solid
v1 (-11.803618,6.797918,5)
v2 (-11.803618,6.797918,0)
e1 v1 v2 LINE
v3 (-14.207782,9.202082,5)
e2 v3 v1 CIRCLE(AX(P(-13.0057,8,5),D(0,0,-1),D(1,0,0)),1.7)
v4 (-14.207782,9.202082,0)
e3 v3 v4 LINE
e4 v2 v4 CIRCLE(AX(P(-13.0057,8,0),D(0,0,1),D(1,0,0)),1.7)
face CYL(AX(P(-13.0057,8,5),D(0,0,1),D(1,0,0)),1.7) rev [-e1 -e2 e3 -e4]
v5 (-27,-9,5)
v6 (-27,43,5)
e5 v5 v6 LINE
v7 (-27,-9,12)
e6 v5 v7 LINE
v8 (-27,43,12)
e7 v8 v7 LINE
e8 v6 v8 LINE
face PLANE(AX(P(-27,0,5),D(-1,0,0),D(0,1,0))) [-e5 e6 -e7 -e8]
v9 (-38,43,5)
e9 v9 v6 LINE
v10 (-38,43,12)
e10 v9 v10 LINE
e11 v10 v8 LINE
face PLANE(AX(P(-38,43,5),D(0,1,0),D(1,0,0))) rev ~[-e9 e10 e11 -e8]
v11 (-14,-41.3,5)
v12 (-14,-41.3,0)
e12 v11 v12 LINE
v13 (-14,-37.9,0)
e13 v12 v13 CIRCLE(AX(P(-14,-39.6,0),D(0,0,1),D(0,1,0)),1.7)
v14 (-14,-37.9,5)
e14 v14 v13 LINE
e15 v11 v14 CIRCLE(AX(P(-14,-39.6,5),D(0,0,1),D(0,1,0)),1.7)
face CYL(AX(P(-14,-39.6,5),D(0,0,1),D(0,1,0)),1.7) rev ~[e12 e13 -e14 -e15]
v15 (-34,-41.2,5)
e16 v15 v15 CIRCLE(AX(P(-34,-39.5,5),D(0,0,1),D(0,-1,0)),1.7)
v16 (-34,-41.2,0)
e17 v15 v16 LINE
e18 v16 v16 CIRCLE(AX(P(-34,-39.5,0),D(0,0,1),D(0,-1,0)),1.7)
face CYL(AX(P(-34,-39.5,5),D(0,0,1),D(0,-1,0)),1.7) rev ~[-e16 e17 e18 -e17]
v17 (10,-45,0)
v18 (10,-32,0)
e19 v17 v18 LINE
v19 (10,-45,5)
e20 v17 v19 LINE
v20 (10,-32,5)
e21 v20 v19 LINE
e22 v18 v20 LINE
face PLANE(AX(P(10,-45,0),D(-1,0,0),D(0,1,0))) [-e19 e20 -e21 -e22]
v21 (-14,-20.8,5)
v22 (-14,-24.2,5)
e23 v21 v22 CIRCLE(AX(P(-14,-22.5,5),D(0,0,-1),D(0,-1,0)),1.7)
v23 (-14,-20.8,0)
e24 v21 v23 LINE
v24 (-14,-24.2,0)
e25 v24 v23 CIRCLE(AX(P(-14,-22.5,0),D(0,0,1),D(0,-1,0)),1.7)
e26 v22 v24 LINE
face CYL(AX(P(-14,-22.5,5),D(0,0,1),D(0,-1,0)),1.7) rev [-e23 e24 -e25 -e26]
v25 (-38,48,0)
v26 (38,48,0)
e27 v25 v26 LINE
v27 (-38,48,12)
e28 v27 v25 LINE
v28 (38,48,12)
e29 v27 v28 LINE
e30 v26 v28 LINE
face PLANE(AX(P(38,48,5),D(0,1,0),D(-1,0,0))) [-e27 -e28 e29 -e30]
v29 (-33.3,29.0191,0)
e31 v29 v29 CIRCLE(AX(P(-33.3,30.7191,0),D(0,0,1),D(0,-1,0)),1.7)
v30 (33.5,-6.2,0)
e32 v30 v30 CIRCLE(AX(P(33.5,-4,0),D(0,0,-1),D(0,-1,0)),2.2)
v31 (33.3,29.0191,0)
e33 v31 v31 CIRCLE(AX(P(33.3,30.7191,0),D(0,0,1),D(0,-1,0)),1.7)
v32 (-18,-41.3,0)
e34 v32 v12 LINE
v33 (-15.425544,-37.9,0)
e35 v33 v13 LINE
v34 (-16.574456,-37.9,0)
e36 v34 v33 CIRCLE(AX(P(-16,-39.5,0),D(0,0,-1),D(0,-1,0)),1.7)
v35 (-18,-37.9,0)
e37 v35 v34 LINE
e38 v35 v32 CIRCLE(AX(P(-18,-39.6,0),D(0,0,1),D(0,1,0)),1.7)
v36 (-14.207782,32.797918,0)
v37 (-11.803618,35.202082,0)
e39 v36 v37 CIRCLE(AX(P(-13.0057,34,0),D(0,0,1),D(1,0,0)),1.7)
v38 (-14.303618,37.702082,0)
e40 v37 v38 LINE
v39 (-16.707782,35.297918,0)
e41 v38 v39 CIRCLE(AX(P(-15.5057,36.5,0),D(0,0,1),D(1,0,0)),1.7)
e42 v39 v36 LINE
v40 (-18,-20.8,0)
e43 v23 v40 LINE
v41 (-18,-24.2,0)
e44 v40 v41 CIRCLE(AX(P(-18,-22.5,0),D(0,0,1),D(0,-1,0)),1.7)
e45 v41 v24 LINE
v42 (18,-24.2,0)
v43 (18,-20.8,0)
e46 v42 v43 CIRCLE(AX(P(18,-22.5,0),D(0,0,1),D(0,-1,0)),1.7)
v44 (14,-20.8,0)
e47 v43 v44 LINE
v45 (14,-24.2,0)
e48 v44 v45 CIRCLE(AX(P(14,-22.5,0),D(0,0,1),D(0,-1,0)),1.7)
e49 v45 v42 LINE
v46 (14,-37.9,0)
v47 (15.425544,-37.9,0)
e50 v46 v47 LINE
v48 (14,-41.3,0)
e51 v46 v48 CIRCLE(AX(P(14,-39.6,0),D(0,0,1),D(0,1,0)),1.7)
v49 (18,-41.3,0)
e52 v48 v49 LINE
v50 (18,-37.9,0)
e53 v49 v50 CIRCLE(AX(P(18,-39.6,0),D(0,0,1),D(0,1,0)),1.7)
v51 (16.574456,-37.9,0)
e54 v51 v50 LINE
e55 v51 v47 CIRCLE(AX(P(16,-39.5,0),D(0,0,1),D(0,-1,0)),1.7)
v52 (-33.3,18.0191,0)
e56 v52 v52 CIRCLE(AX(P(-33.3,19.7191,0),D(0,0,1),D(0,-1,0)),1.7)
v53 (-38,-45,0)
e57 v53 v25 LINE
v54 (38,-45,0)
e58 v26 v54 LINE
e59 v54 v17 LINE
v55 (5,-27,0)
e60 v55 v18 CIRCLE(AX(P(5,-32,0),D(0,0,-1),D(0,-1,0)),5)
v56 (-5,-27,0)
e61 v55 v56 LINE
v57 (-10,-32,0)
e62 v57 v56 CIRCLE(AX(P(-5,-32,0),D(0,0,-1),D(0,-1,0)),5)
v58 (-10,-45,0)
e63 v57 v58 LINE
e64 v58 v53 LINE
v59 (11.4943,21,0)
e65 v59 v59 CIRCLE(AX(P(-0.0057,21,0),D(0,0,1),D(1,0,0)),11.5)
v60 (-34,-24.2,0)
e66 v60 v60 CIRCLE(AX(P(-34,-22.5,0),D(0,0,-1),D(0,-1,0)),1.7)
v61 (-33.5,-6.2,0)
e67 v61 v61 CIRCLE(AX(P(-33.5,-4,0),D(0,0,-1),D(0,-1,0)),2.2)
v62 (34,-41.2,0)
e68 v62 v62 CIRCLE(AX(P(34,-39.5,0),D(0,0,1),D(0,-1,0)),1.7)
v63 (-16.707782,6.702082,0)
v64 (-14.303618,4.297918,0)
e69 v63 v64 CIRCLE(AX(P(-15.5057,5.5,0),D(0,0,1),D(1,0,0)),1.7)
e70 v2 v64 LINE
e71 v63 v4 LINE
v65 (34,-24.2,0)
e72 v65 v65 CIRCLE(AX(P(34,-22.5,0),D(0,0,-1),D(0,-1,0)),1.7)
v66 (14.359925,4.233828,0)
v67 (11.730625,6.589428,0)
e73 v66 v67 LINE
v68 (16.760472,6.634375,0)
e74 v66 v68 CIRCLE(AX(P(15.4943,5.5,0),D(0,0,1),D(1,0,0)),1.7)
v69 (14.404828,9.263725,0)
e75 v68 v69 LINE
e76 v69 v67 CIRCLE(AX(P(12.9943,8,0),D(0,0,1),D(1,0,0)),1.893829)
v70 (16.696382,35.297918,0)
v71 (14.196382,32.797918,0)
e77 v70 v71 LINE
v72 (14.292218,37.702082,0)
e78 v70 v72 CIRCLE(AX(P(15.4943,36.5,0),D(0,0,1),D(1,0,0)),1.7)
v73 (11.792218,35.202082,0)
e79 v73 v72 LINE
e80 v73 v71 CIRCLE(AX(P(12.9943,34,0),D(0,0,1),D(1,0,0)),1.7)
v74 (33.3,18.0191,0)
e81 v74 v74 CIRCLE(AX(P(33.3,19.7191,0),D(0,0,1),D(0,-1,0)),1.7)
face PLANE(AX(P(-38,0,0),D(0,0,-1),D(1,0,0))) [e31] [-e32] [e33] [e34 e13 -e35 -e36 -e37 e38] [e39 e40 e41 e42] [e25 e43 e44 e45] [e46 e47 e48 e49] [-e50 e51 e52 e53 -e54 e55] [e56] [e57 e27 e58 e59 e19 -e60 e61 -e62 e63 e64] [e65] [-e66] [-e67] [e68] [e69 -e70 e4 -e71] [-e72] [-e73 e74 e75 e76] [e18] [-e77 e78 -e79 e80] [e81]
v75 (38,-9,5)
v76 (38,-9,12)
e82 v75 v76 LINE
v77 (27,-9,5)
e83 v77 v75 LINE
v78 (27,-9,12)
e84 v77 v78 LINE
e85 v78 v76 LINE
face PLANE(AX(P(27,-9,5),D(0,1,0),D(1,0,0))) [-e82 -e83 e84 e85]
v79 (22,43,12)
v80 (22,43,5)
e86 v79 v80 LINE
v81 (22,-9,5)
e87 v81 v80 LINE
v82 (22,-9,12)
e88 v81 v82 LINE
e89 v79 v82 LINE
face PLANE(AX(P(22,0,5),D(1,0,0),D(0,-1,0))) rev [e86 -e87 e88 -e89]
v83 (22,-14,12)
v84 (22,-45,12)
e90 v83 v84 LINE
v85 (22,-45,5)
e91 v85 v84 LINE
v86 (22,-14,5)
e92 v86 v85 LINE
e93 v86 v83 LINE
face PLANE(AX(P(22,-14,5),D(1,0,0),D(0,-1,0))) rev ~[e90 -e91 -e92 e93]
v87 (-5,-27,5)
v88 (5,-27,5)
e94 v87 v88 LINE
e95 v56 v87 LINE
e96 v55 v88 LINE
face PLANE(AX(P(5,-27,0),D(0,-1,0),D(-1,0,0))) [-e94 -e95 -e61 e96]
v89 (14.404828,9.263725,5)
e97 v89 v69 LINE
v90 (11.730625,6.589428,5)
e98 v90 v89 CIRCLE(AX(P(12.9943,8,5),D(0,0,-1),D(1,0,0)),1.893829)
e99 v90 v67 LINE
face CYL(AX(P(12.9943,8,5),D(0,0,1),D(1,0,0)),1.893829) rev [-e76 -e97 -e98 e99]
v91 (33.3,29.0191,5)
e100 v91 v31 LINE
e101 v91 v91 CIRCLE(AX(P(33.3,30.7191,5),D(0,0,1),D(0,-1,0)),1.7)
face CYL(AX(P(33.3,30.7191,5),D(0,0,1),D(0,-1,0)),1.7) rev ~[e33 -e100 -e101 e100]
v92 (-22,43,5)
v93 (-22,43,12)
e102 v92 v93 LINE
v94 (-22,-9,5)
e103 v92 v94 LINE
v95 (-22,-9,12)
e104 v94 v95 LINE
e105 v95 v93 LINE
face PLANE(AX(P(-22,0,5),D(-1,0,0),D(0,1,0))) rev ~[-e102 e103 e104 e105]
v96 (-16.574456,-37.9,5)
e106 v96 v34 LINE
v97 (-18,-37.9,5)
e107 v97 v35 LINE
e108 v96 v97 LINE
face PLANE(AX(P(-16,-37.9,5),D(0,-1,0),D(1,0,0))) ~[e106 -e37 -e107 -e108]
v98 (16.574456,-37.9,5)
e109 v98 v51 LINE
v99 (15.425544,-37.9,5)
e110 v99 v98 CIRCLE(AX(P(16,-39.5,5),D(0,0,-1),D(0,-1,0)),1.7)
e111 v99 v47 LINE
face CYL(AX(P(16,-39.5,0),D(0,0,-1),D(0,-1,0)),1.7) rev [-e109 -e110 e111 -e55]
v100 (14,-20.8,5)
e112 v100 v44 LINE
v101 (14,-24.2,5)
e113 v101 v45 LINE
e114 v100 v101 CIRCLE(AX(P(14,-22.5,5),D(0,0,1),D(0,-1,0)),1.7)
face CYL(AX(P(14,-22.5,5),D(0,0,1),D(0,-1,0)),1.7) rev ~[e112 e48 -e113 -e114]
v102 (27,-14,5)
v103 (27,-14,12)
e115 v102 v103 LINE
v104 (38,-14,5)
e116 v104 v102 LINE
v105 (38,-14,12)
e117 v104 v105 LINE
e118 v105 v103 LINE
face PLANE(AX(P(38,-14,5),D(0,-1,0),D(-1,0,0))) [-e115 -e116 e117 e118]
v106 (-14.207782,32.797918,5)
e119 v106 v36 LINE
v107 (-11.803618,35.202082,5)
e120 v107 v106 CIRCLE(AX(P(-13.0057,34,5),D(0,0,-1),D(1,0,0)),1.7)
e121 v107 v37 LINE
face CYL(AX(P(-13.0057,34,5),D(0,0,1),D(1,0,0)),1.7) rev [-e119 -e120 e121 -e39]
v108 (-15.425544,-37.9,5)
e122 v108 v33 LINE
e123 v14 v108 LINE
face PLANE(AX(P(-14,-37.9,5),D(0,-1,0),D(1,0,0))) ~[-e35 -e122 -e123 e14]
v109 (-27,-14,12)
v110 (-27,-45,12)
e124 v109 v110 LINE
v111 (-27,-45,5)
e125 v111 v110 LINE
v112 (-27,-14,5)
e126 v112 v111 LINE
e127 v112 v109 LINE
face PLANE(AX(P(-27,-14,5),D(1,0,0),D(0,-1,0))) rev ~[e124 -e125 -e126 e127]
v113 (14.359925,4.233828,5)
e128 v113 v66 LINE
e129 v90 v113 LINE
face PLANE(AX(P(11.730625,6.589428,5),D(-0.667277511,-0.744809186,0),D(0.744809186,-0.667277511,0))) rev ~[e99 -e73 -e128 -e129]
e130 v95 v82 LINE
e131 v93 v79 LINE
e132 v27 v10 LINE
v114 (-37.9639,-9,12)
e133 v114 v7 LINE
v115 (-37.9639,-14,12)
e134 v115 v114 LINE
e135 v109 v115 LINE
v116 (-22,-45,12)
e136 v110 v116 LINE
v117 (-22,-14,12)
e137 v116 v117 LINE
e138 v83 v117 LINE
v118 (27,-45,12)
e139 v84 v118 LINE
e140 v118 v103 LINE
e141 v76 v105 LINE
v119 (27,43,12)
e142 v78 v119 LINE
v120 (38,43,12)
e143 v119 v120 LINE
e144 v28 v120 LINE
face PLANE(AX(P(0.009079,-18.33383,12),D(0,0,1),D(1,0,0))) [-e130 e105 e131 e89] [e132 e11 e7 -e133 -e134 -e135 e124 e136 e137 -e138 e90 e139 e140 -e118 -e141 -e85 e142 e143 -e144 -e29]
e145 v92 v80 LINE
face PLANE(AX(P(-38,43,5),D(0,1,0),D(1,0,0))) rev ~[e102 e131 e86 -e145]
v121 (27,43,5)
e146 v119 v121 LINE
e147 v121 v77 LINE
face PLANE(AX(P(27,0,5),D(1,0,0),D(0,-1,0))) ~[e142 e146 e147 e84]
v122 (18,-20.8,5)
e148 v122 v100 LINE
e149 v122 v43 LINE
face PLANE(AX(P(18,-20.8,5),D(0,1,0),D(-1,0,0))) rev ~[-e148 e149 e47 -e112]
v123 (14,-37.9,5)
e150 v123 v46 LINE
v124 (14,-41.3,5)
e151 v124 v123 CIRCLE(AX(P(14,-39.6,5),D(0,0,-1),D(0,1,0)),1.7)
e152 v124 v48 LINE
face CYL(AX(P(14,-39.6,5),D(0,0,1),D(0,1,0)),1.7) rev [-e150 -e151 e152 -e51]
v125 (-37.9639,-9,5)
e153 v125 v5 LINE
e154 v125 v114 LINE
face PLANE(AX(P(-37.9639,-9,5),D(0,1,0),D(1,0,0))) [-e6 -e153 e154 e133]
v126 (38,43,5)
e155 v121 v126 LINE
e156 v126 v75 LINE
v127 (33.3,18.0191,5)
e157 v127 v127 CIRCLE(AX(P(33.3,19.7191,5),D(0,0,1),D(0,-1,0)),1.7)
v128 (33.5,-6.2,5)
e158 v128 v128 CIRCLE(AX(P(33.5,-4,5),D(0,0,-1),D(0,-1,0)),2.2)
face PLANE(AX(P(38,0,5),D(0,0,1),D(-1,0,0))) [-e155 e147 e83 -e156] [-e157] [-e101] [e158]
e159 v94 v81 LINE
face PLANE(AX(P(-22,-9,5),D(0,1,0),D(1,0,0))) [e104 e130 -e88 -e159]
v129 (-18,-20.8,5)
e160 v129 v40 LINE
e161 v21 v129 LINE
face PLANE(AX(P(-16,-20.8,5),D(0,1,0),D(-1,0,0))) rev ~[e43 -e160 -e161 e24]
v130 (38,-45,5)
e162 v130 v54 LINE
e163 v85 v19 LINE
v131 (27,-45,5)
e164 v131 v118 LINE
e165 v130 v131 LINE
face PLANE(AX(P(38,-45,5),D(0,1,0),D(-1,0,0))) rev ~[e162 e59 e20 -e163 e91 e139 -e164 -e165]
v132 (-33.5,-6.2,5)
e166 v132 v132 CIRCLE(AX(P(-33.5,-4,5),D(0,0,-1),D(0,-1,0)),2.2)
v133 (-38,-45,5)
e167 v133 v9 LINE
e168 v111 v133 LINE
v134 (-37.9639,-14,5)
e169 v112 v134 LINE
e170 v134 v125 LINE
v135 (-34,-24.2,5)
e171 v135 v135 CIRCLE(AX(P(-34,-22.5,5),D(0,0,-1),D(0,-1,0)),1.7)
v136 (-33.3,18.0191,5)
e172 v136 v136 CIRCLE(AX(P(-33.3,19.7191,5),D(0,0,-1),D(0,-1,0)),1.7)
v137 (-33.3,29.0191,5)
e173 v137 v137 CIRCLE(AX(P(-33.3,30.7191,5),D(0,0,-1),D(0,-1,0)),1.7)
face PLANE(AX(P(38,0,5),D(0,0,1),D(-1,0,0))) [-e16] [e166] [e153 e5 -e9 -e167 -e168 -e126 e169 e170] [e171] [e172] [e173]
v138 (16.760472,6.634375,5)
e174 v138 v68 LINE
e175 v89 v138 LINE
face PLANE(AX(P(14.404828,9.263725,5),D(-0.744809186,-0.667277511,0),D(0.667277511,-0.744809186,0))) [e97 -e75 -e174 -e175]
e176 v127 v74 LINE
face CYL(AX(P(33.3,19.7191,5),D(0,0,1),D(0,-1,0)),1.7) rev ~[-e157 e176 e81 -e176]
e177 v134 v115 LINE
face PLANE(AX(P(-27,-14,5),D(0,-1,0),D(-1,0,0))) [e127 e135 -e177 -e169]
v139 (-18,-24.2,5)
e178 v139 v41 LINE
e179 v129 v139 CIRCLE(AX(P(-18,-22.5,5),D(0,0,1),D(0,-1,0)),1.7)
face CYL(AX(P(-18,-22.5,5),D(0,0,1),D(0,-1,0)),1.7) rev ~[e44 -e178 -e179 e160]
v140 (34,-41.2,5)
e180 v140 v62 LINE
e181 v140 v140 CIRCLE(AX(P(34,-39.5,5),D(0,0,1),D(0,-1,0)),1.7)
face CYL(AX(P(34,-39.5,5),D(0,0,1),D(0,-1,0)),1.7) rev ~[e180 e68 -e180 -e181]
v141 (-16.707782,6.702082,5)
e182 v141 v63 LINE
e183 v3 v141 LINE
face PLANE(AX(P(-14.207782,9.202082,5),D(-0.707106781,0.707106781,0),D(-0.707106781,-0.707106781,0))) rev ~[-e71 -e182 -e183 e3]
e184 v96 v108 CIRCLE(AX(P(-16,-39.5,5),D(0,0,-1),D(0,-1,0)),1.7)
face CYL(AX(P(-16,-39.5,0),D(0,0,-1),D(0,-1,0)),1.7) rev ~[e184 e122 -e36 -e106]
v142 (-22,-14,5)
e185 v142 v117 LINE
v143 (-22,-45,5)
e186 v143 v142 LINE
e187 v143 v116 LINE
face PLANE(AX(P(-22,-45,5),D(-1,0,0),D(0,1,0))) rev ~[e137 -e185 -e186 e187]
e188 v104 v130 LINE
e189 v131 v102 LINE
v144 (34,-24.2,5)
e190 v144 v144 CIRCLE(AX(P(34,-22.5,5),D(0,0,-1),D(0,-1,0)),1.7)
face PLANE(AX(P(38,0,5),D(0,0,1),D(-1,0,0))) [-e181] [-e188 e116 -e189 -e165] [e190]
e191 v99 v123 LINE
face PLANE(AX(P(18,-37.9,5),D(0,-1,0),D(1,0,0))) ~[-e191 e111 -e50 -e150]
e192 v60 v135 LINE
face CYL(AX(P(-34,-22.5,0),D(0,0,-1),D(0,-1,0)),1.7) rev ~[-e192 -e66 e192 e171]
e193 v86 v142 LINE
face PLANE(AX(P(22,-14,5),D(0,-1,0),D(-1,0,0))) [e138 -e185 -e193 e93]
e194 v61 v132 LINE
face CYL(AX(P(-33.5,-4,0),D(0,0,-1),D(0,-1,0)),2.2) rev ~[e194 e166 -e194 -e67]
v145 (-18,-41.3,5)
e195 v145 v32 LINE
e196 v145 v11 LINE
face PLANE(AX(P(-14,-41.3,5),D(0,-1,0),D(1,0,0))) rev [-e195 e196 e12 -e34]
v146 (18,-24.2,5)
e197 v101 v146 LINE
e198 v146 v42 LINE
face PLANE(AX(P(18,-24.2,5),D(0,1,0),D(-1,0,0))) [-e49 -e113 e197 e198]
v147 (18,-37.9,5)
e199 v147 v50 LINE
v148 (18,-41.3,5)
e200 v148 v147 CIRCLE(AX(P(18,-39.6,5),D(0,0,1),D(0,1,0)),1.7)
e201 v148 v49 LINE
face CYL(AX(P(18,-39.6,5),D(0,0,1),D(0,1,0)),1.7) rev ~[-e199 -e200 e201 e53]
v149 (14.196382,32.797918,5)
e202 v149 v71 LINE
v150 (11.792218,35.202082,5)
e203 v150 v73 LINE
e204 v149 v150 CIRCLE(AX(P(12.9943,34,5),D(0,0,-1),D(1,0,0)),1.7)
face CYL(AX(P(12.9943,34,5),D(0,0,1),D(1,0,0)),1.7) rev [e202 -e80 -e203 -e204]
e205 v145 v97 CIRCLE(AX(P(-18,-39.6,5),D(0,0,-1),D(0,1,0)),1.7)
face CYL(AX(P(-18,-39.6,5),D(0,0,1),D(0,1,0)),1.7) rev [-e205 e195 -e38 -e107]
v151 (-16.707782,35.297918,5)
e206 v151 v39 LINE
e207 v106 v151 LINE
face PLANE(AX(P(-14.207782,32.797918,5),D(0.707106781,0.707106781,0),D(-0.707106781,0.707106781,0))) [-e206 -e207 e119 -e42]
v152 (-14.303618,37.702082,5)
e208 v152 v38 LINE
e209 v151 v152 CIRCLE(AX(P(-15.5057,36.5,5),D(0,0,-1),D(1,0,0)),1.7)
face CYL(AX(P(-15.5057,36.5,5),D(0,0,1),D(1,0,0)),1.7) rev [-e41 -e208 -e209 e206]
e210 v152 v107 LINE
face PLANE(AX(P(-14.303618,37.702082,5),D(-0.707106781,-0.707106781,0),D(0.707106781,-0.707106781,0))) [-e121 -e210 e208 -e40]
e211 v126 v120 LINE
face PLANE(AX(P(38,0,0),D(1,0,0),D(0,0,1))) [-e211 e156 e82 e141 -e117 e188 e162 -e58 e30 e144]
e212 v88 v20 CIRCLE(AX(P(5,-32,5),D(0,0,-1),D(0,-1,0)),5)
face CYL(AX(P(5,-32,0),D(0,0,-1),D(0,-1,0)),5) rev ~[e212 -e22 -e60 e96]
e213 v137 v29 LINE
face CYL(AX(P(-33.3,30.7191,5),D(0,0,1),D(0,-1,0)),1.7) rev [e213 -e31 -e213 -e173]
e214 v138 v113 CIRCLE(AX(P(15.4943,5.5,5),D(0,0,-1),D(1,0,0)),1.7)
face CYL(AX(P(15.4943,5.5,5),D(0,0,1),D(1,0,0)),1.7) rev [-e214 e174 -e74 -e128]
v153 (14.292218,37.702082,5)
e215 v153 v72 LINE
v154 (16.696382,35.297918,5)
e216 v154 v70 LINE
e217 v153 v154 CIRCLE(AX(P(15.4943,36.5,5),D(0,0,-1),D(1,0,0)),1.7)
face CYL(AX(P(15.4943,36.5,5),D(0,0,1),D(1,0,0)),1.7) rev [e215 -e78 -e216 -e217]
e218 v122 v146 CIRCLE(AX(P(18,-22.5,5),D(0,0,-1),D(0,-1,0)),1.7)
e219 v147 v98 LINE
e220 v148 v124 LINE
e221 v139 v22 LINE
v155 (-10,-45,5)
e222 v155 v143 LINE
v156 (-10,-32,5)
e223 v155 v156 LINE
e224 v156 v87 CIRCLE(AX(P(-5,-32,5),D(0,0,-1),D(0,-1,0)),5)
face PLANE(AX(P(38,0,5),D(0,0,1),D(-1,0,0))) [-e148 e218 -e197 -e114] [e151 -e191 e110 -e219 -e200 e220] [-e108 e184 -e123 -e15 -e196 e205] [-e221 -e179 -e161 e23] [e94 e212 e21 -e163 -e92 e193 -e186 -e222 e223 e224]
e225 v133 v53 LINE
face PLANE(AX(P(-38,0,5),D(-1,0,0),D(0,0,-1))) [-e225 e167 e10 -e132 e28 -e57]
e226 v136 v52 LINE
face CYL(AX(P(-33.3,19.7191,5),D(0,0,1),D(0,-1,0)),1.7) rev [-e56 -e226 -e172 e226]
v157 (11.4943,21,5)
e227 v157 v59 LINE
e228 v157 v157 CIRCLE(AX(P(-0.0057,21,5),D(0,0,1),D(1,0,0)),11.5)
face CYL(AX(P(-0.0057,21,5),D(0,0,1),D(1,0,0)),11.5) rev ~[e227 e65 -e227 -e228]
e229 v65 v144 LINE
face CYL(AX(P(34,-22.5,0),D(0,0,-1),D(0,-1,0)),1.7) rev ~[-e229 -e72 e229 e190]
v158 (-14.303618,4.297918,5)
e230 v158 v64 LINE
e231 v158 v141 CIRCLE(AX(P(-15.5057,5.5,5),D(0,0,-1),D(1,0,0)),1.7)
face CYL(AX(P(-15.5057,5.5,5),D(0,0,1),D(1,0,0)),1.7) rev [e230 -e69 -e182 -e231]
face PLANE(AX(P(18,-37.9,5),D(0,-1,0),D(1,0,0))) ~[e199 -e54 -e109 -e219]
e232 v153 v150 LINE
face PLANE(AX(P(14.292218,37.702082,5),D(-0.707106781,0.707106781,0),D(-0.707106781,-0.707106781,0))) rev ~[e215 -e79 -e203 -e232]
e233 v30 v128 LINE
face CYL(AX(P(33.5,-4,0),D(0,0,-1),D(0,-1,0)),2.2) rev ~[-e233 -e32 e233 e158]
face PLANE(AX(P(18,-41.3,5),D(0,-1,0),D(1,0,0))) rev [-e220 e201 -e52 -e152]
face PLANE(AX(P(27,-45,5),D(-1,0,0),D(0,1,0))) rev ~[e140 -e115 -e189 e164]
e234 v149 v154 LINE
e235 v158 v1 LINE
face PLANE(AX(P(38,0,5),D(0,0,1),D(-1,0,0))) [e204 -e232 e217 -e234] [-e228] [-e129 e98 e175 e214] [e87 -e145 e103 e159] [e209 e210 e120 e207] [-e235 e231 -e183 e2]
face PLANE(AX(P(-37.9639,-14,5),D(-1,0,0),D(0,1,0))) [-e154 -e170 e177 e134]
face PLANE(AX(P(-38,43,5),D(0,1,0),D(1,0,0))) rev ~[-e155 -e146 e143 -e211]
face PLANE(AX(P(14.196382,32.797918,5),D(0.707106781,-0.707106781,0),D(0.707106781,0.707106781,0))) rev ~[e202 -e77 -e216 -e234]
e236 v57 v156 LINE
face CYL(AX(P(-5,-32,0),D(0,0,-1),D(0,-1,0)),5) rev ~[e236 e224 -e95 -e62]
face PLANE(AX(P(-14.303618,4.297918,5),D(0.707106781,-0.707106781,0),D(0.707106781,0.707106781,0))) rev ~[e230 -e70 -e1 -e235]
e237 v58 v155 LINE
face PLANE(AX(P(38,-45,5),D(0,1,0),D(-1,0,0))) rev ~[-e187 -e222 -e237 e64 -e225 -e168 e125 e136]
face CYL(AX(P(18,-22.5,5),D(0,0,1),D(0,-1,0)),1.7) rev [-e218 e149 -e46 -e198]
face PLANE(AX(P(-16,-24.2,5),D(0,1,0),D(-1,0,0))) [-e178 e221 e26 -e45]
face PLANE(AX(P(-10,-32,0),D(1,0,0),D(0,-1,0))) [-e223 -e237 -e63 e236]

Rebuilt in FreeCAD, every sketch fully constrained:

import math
import FreeCAD as App
import Part
import Sketcher
Q = App.Units.Quantity

doc = App.newDocument("Part")
params = doc.addObject("Spreadsheet::Sheet", "Params")
for row, (alias, value) in enumerate([
    ("sketch1_height", "5 mm"),
    ("pad1_length", "62 mm"),
    ("sketch2_diameter", "4.4 mm"),
    ("pocket1_length", "110 mm"),
    ("sketch3_width", "5 mm"),
    ("sketch3_height", "62 mm"),
    ("pad2_length", "5 mm"),
    ("sketch4_width", "76 mm"),
    ("sketch4_height", "5 mm"),
    ("pad3_length", "7 mm"),
    ("sketch5_diameter", "23 mm"),
    ("sketch5_radius", "1.7 mm"),
    ("sketch6_width", "76 mm"),
    ("sketch6_height", "45 mm"),
    ("pad4_length", "5 mm"),
    ("sketch7_diameter", "3.4 mm"),
    ("pocket3_length", "143.3279 mm"),
    ("sketch8_diameter", "3.4 mm"),
    ("pocket4_length", "316.0197 mm"),
    ("sketch9_diameter", "3.4 mm"),
    ("pocket5_length", "37.4845 mm"),
    ("sketch10_height", "14 mm"),
    ("sketch11_diameter", "4.4 mm"),
    ("pocket7_length", "103.1381 mm"),
    ("sketch12_radius", "5 mm"),
    ("sketch12_width", "20 mm"),
    ("sketch12_height", "13 mm"),
    ("pocket8_length", "370.0743 mm"),
    ("sketch13_width", "5 mm"),
    ("sketch13_width2", "44 mm"),
    ("sketch13_width3", "11 mm"),
    ("sketch13_height", "9 mm"),
    ("sketch13_height2", "31 mm"),
    ("pad5_length", "7 mm"),
    ("sketch14_width", "5 mm"),
    ("sketch14_height", "43 mm"),
    ("pad6_length", "2 mm"),
    ("sketch15_radius", "1.7 mm"),
    ("sketch15_width", "4 mm"),
    ("pocket9_length", "2209.1975 mm"),
    ("sketch16_diameter", "3.4 mm"),
    ("pocket10_length", "130.0202 mm"),
], start=1):
    params.set(f"A{row}", alias)
    params.set(f"B{row}", "=" + value)
    params.setAlias(f"B{row}", alias)

body = doc.addObject("PartDesign::Body", "Body")

sketch1 = doc.addObject("Sketcher::SketchObject", "Sketch")
body.addObject(sketch1)
sketch1.AttachmentSupport = (doc.XZ_Plane, [""])
sketch1.MapMode = "FlatFace"
sketch1.addGeometry([
    Part.LineSegment(App.Vector(-38, 5, 0), App.Vector(-38, 0, 0)),
    Part.LineSegment(App.Vector(-38, 0, 0), App.Vector(38, 0, 0)),
    Part.LineSegment(App.Vector(38, 0, 0), App.Vector(38, 5, 0)),
    Part.LineSegment(App.Vector(38, 5, 0), App.Vector(-38, 5, 0)),
], False)
sketch1.addConstraint([
    Sketcher.Constraint("Coincident", 0, 2, 1, 1),
    Sketcher.Constraint("Coincident", 1, 2, 2, 1),
    Sketcher.Constraint("Coincident", 2, 2, 3, 1),
    Sketcher.Constraint("Coincident", 3, 2, 0, 1),
    Sketcher.Constraint("Vertical", 0),
    Sketcher.Constraint("Horizontal", 1),
    Sketcher.Constraint("Vertical", 2),
    Sketcher.Constraint("Horizontal", 3),
    Sketcher.Constraint("Symmetric", 0, 2, 1, 2, -1, 1),
    Sketcher.Constraint("DistanceX", 0, 2, -1, 1, Q("38 mm")),
    Sketcher.Constraint("DistanceY", 0, 2, 0, 1, Q("5 mm")),
])
sketch1.setExpression("Constraints[10]", "Params.sketch1_height")
pad1 = doc.addObject("PartDesign::Pad", "Pad")
body.addObject(pad1)
pad1.Profile = sketch1
pad1.setExpression("Length", "Params.pad1_length")
pad1.Reversed = True

sketch2 = doc.addObject("Sketcher::SketchObject", "Sketch001")
body.addObject(sketch2)
sketch2.AttachmentSupport = (doc.XY_Plane, [""])
sketch2.MapMode = "FlatFace"
sketch2.AttachmentOffset = App.Placement(App.Vector(0, 0, 5), App.Rotation())
sketch2.addGeometry([
    Part.Circle(App.Vector(12.5, 53, 0), App.Vector(0, 0, 1), 2.2),
    Part.Circle(App.Vector(-12.5, 53, 0), App.Vector(0, 0, 1), 2.2),
    Part.Circle(App.Vector(-33.5, 53, 0), App.Vector(0, 0, 1), 2.2),
    Part.Circle(App.Vector(33.5, 53, 0), App.Vector(0, 0, 1), 2.2),
], False)
sketch2.addConstraint([
    Sketcher.Constraint("Equal", 0, 1),
    Sketcher.Constraint("Equal", 1, 2),
    Sketcher.Constraint("Equal", 2, 3),
    Sketcher.Constraint("Symmetric", 0, 3, 1, 3, -2),
    Sketcher.Constraint("Symmetric", 2, 3, 3, 3, -2),
    Sketcher.Constraint("Horizontal", 1, 3, 2, 3),
    Sketcher.Constraint("Diameter", 0, Q("4.4 mm")),
    Sketcher.Constraint("DistanceY", -1, 1, 0, 3, Q("53 mm")),
    Sketcher.Constraint("DistanceX", 1, 3, 0, 3, Q("25 mm")),
    Sketcher.Constraint("DistanceX", 2, 3, 1, 3, Q("21 mm")),
])
sketch2.setExpression("Constraints[6]", "Params.sketch2_diameter")
pocket1 = doc.addObject("PartDesign::Pocket", "Pocket")
body.addObject(pocket1)
pocket1.Profile = sketch2
pocket1.setExpression("Length", "Params.pocket1_length")

sketch3 = doc.addObject("Sketcher::SketchObject", "Sketch002")
body.addObject(sketch3)
sketch3.AttachmentSupport = (doc.XY_Plane, [""])
sketch3.MapMode = "FlatFace"
sketch3.AttachmentOffset = App.Placement(App.Vector(0, 0, 5), App.Rotation())
sketch3.addGeometry([
    Part.LineSegment(App.Vector(-27, 0, 0), App.Vector(-22, 0, 0)),
    Part.LineSegment(App.Vector(-22, 0, 0), App.Vector(-22, 62, 0)),
    Part.LineSegment(App.Vector(-22, 62, 0), App.Vector(-27, 62, 0)),
    Part.LineSegment(App.Vector(-27, 62, 0), App.Vector(-27, 0, 0)),
], False)
sketch3.addConstraint([
    Sketcher.Constraint("Coincident", 0, 2, 1, 1),
    Sketcher.Constraint("Coincident", 1, 2, 2, 1),
    Sketcher.Constraint("Coincident", 2, 2, 3, 1),
    Sketcher.Constraint("Coincident", 3, 2, 0, 1),
    Sketcher.Constraint("Horizontal", 0),
    Sketcher.Constraint("Vertical", 1),
    Sketcher.Constraint("Horizontal", 2),
    Sketcher.Constraint("Vertical", 3),
    Sketcher.Constraint("PointOnObject", 0, 2, -1),
    Sketcher.Constraint("DistanceX", 0, 1, 0, 2, Q("5 mm")),
    Sketcher.Constraint("DistanceY", 1, 1, 1, 2, Q("62 mm")),
    Sketcher.Constraint("DistanceX", 0, 2, -1, 1, Q("22 mm")),
])
sketch3.setExpression("Constraints[9]", "Params.sketch3_width")
sketch3.setExpression("Constraints[10]", "Params.sketch3_height")
pad2 = doc.addObject("PartDesign::Pad", "Pad001")
body.addObject(pad2)
pad2.Profile = sketch3
pad2.setExpression("Length", "Params.pad2_length")
doc.recompute()

mirrored = doc.addObject("PartDesign::Mirrored", "Mirrored")
body.addObject(mirrored)
mirrored.Originals = [pad2]
mirrored.MirrorPlane = (doc.YZ_Plane, [""])
body.Tip = mirrored

sketch4 = doc.addObject("Sketcher::SketchObject", "Sketch003")
body.addObject(sketch4)
sketch4.AttachmentSupport = (doc.XY_Plane, [""])
sketch4.MapMode = "FlatFace"
sketch4.AttachmentOffset = App.Placement(App.Vector(0, 0, 5), App.Rotation())
sketch4.addGeometry([
    Part.LineSegment(App.Vector(-38, 48, 0), App.Vector(-38, 43, 0)),
    Part.LineSegment(App.Vector(-38, 43, 0), App.Vector(38, 43, 0)),
    Part.LineSegment(App.Vector(38, 43, 0), App.Vector(38, 48, 0)),
    Part.LineSegment(App.Vector(38, 48, 0), App.Vector(-38, 48, 0)),
], False)
sketch4.addConstraint([
    Sketcher.Constraint("Coincident", 0, 2, 1, 1),
    Sketcher.Constraint("Coincident", 1, 2, 2, 1),
    Sketcher.Constraint("Coincident", 2, 2, 3, 1),
    Sketcher.Constraint("Coincident", 3, 2, 0, 1),
    Sketcher.Constraint("Vertical", 0),
    Sketcher.Constraint("Horizontal", 1),
    Sketcher.Constraint("Vertical", 2),
    Sketcher.Constraint("Horizontal", 3),
    Sketcher.Constraint("DistanceX", 1, 1, 1, 2, Q("76 mm")),
    Sketcher.Constraint("DistanceY", 0, 2, 0, 1, Q("5 mm")),
    Sketcher.Constraint("DistanceX", 0, 2, -1, 1, Q("38 mm")),
    Sketcher.Constraint("DistanceY", -1, 1, 0, 2, Q("43 mm")),
])
sketch4.setExpression("Constraints[8]", "Params.sketch4_width")
sketch4.setExpression("Constraints[9]", "Params.sketch4_height")
pad3 = doc.addObject("PartDesign::Pad", "Pad002")
body.addObject(pad3)
pad3.Profile = sketch4
pad3.setExpression("Length", "Params.pad3_length")

sketch5 = doc.addObject("Sketcher::SketchObject", "Sketch004")
body.addObject(sketch5)
sketch5.AttachmentSupport = (doc.XY_Plane, [""])
sketch5.MapMode = "FlatFace"
sketch5.AttachmentOffset = App.Placement(App.Vector(0, 0, 5), App.Rotation())
sketch5.addGeometry([
    Part.LineSegment(App.Vector(-11.8, 35.2, 0), App.Vector(-14.3, 37.7, 0)),
    Part.ArcOfCircle(Part.Circle(App.Vector(-15.5, 36.5, 0), App.Vector(0, 0, 1), 1.7), math.radians(45), math.radians(225)),
    Part.LineSegment(App.Vector(-16.7, 35.3, 0), App.Vector(-14.2, 32.8, 0)),
    Part.ArcOfCircle(Part.Circle(App.Vector(-13, 34, 0), App.Vector(0, 0, 1), 1.7), math.radians(-135), math.radians(45)),
    Part.ArcOfCircle(Part.Circle(App.Vector(-13, 8, 0), App.Vector(0, 0, 1), 1.7), math.radians(-45), math.radians(135)),
    Part.LineSegment(App.Vector(-14.2, 9.2, 0), App.Vector(-16.7, 6.7, 0)),
    Part.ArcOfCircle(Part.Circle(App.Vector(-15.5, 5.5, 0), App.Vector(0, 0, 1), 1.7), math.radians(135), math.radians(315)),
    Part.LineSegment(App.Vector(-14.3, 4.3, 0), App.Vector(-11.8, 6.8, 0)),
    Part.ArcOfCircle(Part.Circle(App.Vector(13, 8, 0), App.Vector(0, 0, 1), 1.9), math.radians(42), math.radians(228)),
    Part.LineSegment(App.Vector(11.7, 6.6, 0), App.Vector(14.4, 4.2, 0)),
    Part.ArcOfCircle(Part.Circle(App.Vector(15.5, 5.5, 0), App.Vector(0, 0, 1), 1.7), math.radians(-132), math.radians(42)),
    Part.LineSegment(App.Vector(16.8, 6.6, 0), App.Vector(14.4, 9.3, 0)),
    Part.ArcOfCircle(Part.Circle(App.Vector(15.5, 36.5, 0), App.Vector(0, 0, 1), 1.7), math.radians(-45), math.radians(135)),
    Part.LineSegment(App.Vector(14.3, 37.7, 0), App.Vector(11.8, 35.2, 0)),
    Part.ArcOfCircle(Part.Circle(App.Vector(13, 34, 0), App.Vector(0, 0, 1), 1.7), math.radians(135), math.radians(315)),
    Part.LineSegment(App.Vector(14.2, 32.8, 0), App.Vector(16.7, 35.3, 0)),
    Part.Circle(App.Vector(0, 21, 0), App.Vector(0, 0, 1), 11.5),
], False)
sketch5.addConstraint([
    Sketcher.Constraint("Tangent", 0, 2, 1, 1),
    Sketcher.Constraint("Tangent", 1, 2, 2, 1),
    Sketcher.Constraint("Tangent", 2, 2, 3, 1),
    Sketcher.Constraint("Tangent", 3, 2, 0, 1),
    Sketcher.Constraint("Tangent", 4, 2, 5, 1),
    Sketcher.Constraint("Tangent", 5, 2, 6, 1),
    Sketcher.Constraint("Tangent", 6, 2, 7, 1),
    Sketcher.Constraint("Tangent", 7, 2, 4, 1),
    Sketcher.Constraint("Tangent", 8, 2, 9, 1),
    Sketcher.Constraint("Tangent", 9, 2, 10, 1),
    Sketcher.Constraint("Tangent", 10, 2, 11, 1),
    Sketcher.Constraint("Tangent", 11, 2, 8, 1),
    Sketcher.Constraint("Tangent", 12, 2, 13, 1),
    Sketcher.Constraint("Tangent", 13, 2, 14, 1),
    Sketcher.Constraint("Tangent", 14, 2, 15, 1),
    Sketcher.Constraint("Tangent", 15, 2, 12, 1),
    Sketcher.Constraint("Equal", 1, 3),
    Sketcher.Constraint("Equal", 3, 4),
    Sketcher.Constraint("Equal", 4, 6),
    Sketcher.Constraint("Equal", 6, 10),
    Sketcher.Constraint("Equal", 10, 12),
    Sketcher.Constraint("Equal", 12, 14),
    Sketcher.Constraint("Perpendicular", 2, 5),
    Sketcher.Constraint("Parallel", 7, 13),
    Sketcher.Constraint("Horizontal", 4, 3, 8, 3),
    Sketcher.Constraint("Horizontal", 6, 3, 10, 3),
    Sketcher.Constraint("Horizontal", 1, 3, 12, 3),
    Sketcher.Constraint("Horizontal", 3, 3, 14, 3),
    Sketcher.Constraint("Horizontal", 0, 2, 12, 2),
    Sketcher.Constraint("Vertical", 3, 3, 4, 3),
    Sketcher.Constraint("Vertical", 1, 3, 6, 3),
    Sketcher.Constraint("Vertical", 10, 3, 12, 3),
    Sketcher.Constraint("Vertical", 8, 3, 14, 3),
    Sketcher.Constraint("Diameter", 16, Q("23 mm")),
    Sketcher.Constraint("Radius", 1, Q("1.7 mm")),
    Sketcher.Constraint("DistanceY", -1, 1, 3, 3, Q("34 mm")),
    Sketcher.Constraint("DistanceY", -1, 1, 4, 3, Q("8 mm")),
    Sketcher.Constraint("DistanceY", -1, 1, 16, 3, Q("21 mm")),
    Sketcher.Constraint("DistanceY", 6, 3, 1, 3, Q("31 mm")),
    Sketcher.Constraint("DistanceX", 4, 3, 8, 3, Q("26 mm")),
    Sketcher.Constraint("DistanceX", 3, 3, 16, 3, Q("13 mm")),
    Sketcher.Constraint("DistanceX", 16, 3, -1, 1, Q("0.0057 mm")),
    Sketcher.Constraint("Radius", 8, Q("1.8939 mm")),
])
sketch5.setExpression("Constraints[33]", "Params.sketch5_diameter")
sketch5.setExpression("Constraints[34]", "Params.sketch5_radius")
pocket2 = doc.addObject("PartDesign::Pocket", "Pocket001")
body.addObject(pocket2)
pocket2.Profile = sketch5
pocket2.Type = "ThroughAll"

sketch6 = doc.addObject("Sketcher::SketchObject", "Sketch005")
body.addObject(sketch6)
sketch6.AttachmentSupport = (doc.XY_Plane, [""])
sketch6.MapMode = "FlatFace"
sketch6.AttachmentOffset = App.Placement(App.Vector(0, 0, 5), App.Rotation())
sketch6.addGeometry([
    Part.LineSegment(App.Vector(38, -45, 0), App.Vector(38, 0, 0)),
    Part.LineSegment(App.Vector(38, 0, 0), App.Vector(-38, 0, 0)),
    Part.LineSegment(App.Vector(-38, 0, 0), App.Vector(-38, -45, 0)),
    Part.LineSegment(App.Vector(-38, -45, 0), App.Vector(38, -45, 0)),
], False)
sketch6.addConstraint([
    Sketcher.Constraint("Coincident", 0, 2, 1, 1),
    Sketcher.Constraint("Coincident", 1, 2, 2, 1),
    Sketcher.Constraint("Coincident", 2, 2, 3, 1),
    Sketcher.Constraint("Coincident", 3, 2, 0, 1),
    Sketcher.Constraint("Vertical", 0),
    Sketcher.Constraint("Horizontal", 1),
    Sketcher.Constraint("Vertical", 2),
    Sketcher.Constraint("Horizontal", 3),
    Sketcher.Constraint("Symmetric", 0, 2, 1, 2, -1, 1),
    Sketcher.Constraint("DistanceX", 1, 2, 1, 1, Q("76 mm")),
    Sketcher.Constraint("DistanceY", 0, 1, 0, 2, Q("45 mm")),
])
sketch6.setExpression("Constraints[9]", "Params.sketch6_width")
sketch6.setExpression("Constraints[10]", "Params.sketch6_height")
pad4 = doc.addObject("PartDesign::Pad", "Pad003")
body.addObject(pad4)
pad4.Profile = sketch6
pad4.setExpression("Length", "Params.pad4_length")
pad4.Reversed = True

sketch7 = doc.addObject("Sketcher::SketchObject", "Sketch006")
body.addObject(sketch7)
sketch7.AttachmentSupport = (doc.XY_Plane, [""])
sketch7.MapMode = "FlatFace"
sketch7.AttachmentOffset = App.Placement(App.Vector(0, 0, 5), App.Rotation())
sketch7.addGeometry([
    Part.Circle(App.Vector(-34, -39.5, 0), App.Vector(0, 0, 1), 1.7),
    Part.Circle(App.Vector(34, -39.5, 0), App.Vector(0, 0, 1), 1.7),
], False)
sketch7.addConstraint([
    Sketcher.Constraint("Equal", 0, 1),
    Sketcher.Constraint("Symmetric", 0, 3, 1, 3, -2),
    Sketcher.Constraint("Diameter", 0, Q("3.4 mm")),
    Sketcher.Constraint("DistanceX", 0, 3, -1, 1, Q("34 mm")),
    Sketcher.Constraint("DistanceY", 0, 3, -1, 1, Q("39.5 mm")),
])
sketch7.setExpression("Constraints[2]", "Params.sketch7_diameter")
pocket3 = doc.addObject("PartDesign::Pocket", "Pocket002")
body.addObject(pocket3)
pocket3.Profile = sketch7
pocket3.setExpression("Length", "Params.pocket3_length")

sketch8 = doc.addObject("Sketcher::SketchObject", "Sketch007")
body.addObject(sketch8)
sketch8.AttachmentSupport = (doc.XY_Plane, [""])
sketch8.MapMode = "FlatFace"
sketch8.addGeometry(Part.Circle(App.Vector(-16, -39.5, 0), App.Vector(0, 0, 1), 1.7), False)
sketch8.addConstraint([
    Sketcher.Constraint("Diameter", 0, Q("3.4 mm")),
    Sketcher.Constraint("DistanceX", 0, 3, -1, 1, Q("16 mm")),
    Sketcher.Constraint("DistanceY", 0, 3, -1, 1, Q("39.5 mm")),
])
sketch8.setExpression("Constraints[0]", "Params.sketch8_diameter")
pocket4 = doc.addObject("PartDesign::Pocket", "Pocket003")
body.addObject(pocket4)
pocket4.Profile = sketch8
pocket4.setExpression("Length", "Params.pocket4_length")
pocket4.Reversed = True
doc.recompute()

mirrored2 = doc.addObject("PartDesign::Mirrored", "Mirrored001")
body.addObject(mirrored2)
mirrored2.Originals = [pocket4]
mirrored2.MirrorPlane = (doc.YZ_Plane, [""])
body.Tip = mirrored2

sketch9 = doc.addObject("Sketcher::SketchObject", "Sketch008")
body.addObject(sketch9)
sketch9.AttachmentSupport = (doc.XY_Plane, [""])
sketch9.MapMode = "FlatFace"
sketch9.addGeometry([
    Part.Circle(App.Vector(-16, -22.5, 0), App.Vector(0, 0, 1), 1.7),
    Part.Circle(App.Vector(16, -22.5, 0), App.Vector(0, 0, 1), 1.7),
    Part.Circle(App.Vector(34, -22.5, 0), App.Vector(0, 0, 1), 1.7),
    Part.Circle(App.Vector(-34, -22.5, 0), App.Vector(0, 0, 1), 1.7),
], False)
sketch9.addConstraint([
    Sketcher.Constraint("Equal", 0, 1),
    Sketcher.Constraint("Equal", 1, 2),
    Sketcher.Constraint("Equal", 2, 3),
    Sketcher.Constraint("Symmetric", 0, 3, 1, 3, -2),
    Sketcher.Constraint("Symmetric", 2, 3, 3, 3, -2),
    Sketcher.Constraint("Horizontal", 1, 3, 2, 3),
    Sketcher.Constraint("Diameter", 0, Q("3.4 mm")),
    Sketcher.Constraint("DistanceX", 0, 3, -1, 1, Q("16 mm")),
    Sketcher.Constraint("DistanceX", -1, 1, 2, 3, Q("34 mm")),
    Sketcher.Constraint("DistanceY", 0, 3, -1, 1, Q("22.5 mm")),
])
sketch9.setExpression("Constraints[6]", "Params.sketch9_diameter")
pocket5 = doc.addObject("PartDesign::Pocket", "Pocket004")
body.addObject(pocket5)
pocket5.Profile = sketch9
pocket5.setExpression("Length", "Params.pocket5_length")
pocket5.Reversed = True

sketch10 = doc.addObject("Sketcher::SketchObject", "Sketch009")
body.addObject(sketch10)
sketch10.AttachmentSupport = (doc.XY_Plane, [""])
sketch10.MapMode = "FlatFace"
sketch10.AttachmentOffset = App.Placement(App.Vector(0, 0, 5), App.Rotation())
sketch10.addGeometry([
    Part.LineSegment(App.Vector(38, 48, 0), App.Vector(38, 62, 0)),
    Part.LineSegment(App.Vector(38, 62, 0), App.Vector(-52, 62, 0)),
    Part.LineSegment(App.Vector(-52, 62, 0), App.Vector(-52, 48, 0)),
    Part.LineSegment(App.Vector(-52, 48, 0), App.Vector(38, 48, 0)),
], False)
sketch10.addConstraint([
    Sketcher.Constraint("Coincident", 0, 2, 1, 1),
    Sketcher.Constraint("Coincident", 1, 2, 2, 1),
    Sketcher.Constraint("Coincident", 2, 2, 3, 1),
    Sketcher.Constraint("Coincident", 3, 2, 0, 1),
    Sketcher.Constraint("Vertical", 0),
    Sketcher.Constraint("Horizontal", 1),
    Sketcher.Constraint("Vertical", 2),
    Sketcher.Constraint("Horizontal", 3),
    Sketcher.Constraint("DistanceY", 0, 1, 0, 2, Q("14 mm")),
    Sketcher.Constraint("DistanceX", -1, 1, 0, 2, Q("38 mm")),
    Sketcher.Constraint("DistanceY", -1, 1, 0, 2, Q("62 mm")),
    Sketcher.Constraint("DistanceX", 1, 2, 1, 1, Q("89.7338 mm")),
])
sketch10.setExpression("Constraints[8]", "Params.sketch10_height")
pocket6 = doc.addObject("PartDesign::Pocket", "Pocket005")
body.addObject(pocket6)
pocket6.Profile = sketch10
pocket6.Type = "ThroughAll"
pocket6.Midplane = True

sketch11 = doc.addObject("Sketcher::SketchObject", "Sketch010")
body.addObject(sketch11)
sketch11.AttachmentSupport = (doc.XY_Plane, [""])
sketch11.MapMode = "FlatFace"
sketch11.addGeometry([
    Part.Circle(App.Vector(33.5, -4, 0), App.Vector(0, 0, 1), 2.2),
    Part.Circle(App.Vector(-33.5, -4, 0), App.Vector(0, 0, 1), 2.2),
], False)
sketch11.addConstraint([
    Sketcher.Constraint("Equal", 0, 1),
    Sketcher.Constraint("Symmetric", 0, 3, 1, 3, -2),
    Sketcher.Constraint("Diameter", 0, Q("4.4 mm")),
    Sketcher.Constraint("DistanceY", 0, 3, -1, 1, Q("4 mm")),
    Sketcher.Constraint("DistanceX", 1, 3, 0, 3, Q("67 mm")),
])
sketch11.setExpression("Constraints[2]", "Params.sketch11_diameter")
pocket7 = doc.addObject("PartDesign::Pocket", "Pocket006")
body.addObject(pocket7)
pocket7.Profile = sketch11
pocket7.setExpression("Length", "Params.pocket7_length")
pocket7.Reversed = True

sketch12 = doc.addObject("Sketcher::SketchObject", "Sketch011")
body.addObject(sketch12)
sketch12.AttachmentSupport = (doc.XY_Plane, [""])
sketch12.MapMode = "FlatFace"
sketch12.addGeometry([
    Part.LineSegment(App.Vector(10, -45, 0), App.Vector(-10, -45, 0)),
    Part.LineSegment(App.Vector(-10, -45, 0), App.Vector(-10, -32, 0)),
    Part.ArcOfCircle(Part.Circle(App.Vector(-5, -32, 0), App.Vector(0, 0, 1), 5), math.radians(90), math.radians(180)),
    Part.LineSegment(App.Vector(-5, -27, 0), App.Vector(5, -27, 0)),
    Part.ArcOfCircle(Part.Circle(App.Vector(5, -32, 0), App.Vector(0, 0, 1), 5), math.radians(0), math.radians(90)),
    Part.LineSegment(App.Vector(10, -32, 0), App.Vector(10, -45, 0)),
], False)
sketch12.addConstraint([
    Sketcher.Constraint("Coincident", 0, 2, 1, 1),
    Sketcher.Constraint("Tangent", 1, 2, 2, 2),
    Sketcher.Constraint("Tangent", 2, 1, 3, 1),
    Sketcher.Constraint("Tangent", 3, 2, 4, 2),
    Sketcher.Constraint("Tangent", 4, 1, 5, 1),
    Sketcher.Constraint("Coincident", 5, 2, 0, 1),
    Sketcher.Constraint("Horizontal", 0),
    Sketcher.Constraint("Vertical", 1),
    Sketcher.Constraint("Horizontal", 3),
    Sketcher.Constraint("Vertical", 5),
    Sketcher.Constraint("Equal", 2, 4),
    Sketcher.Constraint("Radius", 2, Q("5 mm")),
    Sketcher.Constraint("DistanceX", 0, 2, 0, 1, Q("20 mm")),
    Sketcher.Constraint("DistanceY", 1, 1, 1, 2, Q("13 mm")),
    Sketcher.Constraint("DistanceX", 2, 3, -1, 1, Q("5 mm")),
    Sketcher.Constraint("DistanceY", 2, 3, -1, 1, Q("32 mm")),
])
sketch12.setExpression("Constraints[11]", "Params.sketch12_radius")
sketch12.setExpression("Constraints[12]", "Params.sketch12_width")
sketch12.setExpression("Constraints[13]", "Params.sketch12_height")
pocket8 = doc.addObject("PartDesign::Pocket", "Pocket007")
body.addObject(pocket8)
pocket8.Profile = sketch12
pocket8.setExpression("Length", "Params.pocket8_length")
pocket8.Reversed = True

sketch13 = doc.addObject("Sketcher::SketchObject", "Sketch012")
body.addObject(sketch13)
sketch13.AttachmentSupport = (doc.XY_Plane, [""])
sketch13.MapMode = "FlatFace"
sketch13.AttachmentOffset = App.Placement(App.Vector(0, 0, 5), App.Rotation())
sketch13.addGeometry([
    Part.LineSegment(App.Vector(27, -9, 0), App.Vector(27, 0, 0)),
    Part.LineSegment(App.Vector(27, 0, 0), App.Vector(22, 0, 0)),
    Part.LineSegment(App.Vector(22, 0, 0), App.Vector(22, -9, 0)),
    Part.LineSegment(App.Vector(22, -9, 0), App.Vector(-22, -9, 0)),
    Part.LineSegment(App.Vector(-22, -9, 0), App.Vector(-22, 0, 0)),
    Part.LineSegment(App.Vector(-22, 0, 0), App.Vector(-27, 0, 0)),
    Part.LineSegment(App.Vector(-27, 0, 0), App.Vector(-27, -9, 0)),
    Part.LineSegment(App.Vector(-27, -9, 0), App.Vector(-38, -9, 0)),
    Part.LineSegment(App.Vector(-38, -9, 0), App.Vector(-38, -14, 0)),
    Part.LineSegment(App.Vector(-38, -14, 0), App.Vector(-27, -14, 0)),
    Part.LineSegment(App.Vector(-27, -14, 0), App.Vector(-27, -45, 0)),
    Part.LineSegment(App.Vector(-27, -45, 0), App.Vector(-22, -45, 0)),
    Part.LineSegment(App.Vector(-22, -45, 0), App.Vector(-22, -14, 0)),
    Part.LineSegment(App.Vector(-22, -14, 0), App.Vector(22, -14, 0)),
    Part.LineSegment(App.Vector(22, -14, 0), App.Vector(22, -45, 0)),
    Part.LineSegment(App.Vector(22, -45, 0), App.Vector(27, -45, 0)),
    Part.LineSegment(App.Vector(27, -45, 0), App.Vector(27, -14, 0)),
    Part.LineSegment(App.Vector(27, -14, 0), App.Vector(38, -14, 0)),
    Part.LineSegment(App.Vector(38, -14, 0), App.Vector(38, -9, 0)),
    Part.LineSegment(App.Vector(38, -9, 0), App.Vector(27, -9, 0)),
], False)
sketch13.addConstraint([
    Sketcher.Constraint("Coincident", 0, 2, 1, 1),
    Sketcher.Constraint("Coincident", 1, 2, 2, 1),
    Sketcher.Constraint("Coincident", 2, 2, 3, 1),
    Sketcher.Constraint("Coincident", 3, 2, 4, 1),
    Sketcher.Constraint("Coincident", 4, 2, 5, 1),
    Sketcher.Constraint("Coincident", 5, 2, 6, 1),
    Sketcher.Constraint("Coincident", 6, 2, 7, 1),
    Sketcher.Constraint("Coincident", 7, 2, 8, 1),
    Sketcher.Constraint("Coincident", 8, 2, 9, 1),
    Sketcher.Constraint("Coincident", 9, 2, 10, 1),
    Sketcher.Constraint("Coincident", 10, 2, 11, 1),
    Sketcher.Constraint("Coincident", 11, 2, 12, 1),
    Sketcher.Constraint("Coincident", 12, 2, 13, 1),
    Sketcher.Constraint("Coincident", 13, 2, 14, 1),
    Sketcher.Constraint("Coincident", 14, 2, 15, 1),
    Sketcher.Constraint("Coincident", 15, 2, 16, 1),
    Sketcher.Constraint("Coincident", 16, 2, 17, 1),
    Sketcher.Constraint("Coincident", 17, 2, 18, 1),
    Sketcher.Constraint("Coincident", 18, 2, 19, 1),
    Sketcher.Constraint("Coincident", 19, 2, 0, 1),
    Sketcher.Constraint("Vertical", 0),
    Sketcher.Constraint("Horizontal", 1),
    Sketcher.Constraint("Vertical", 2),
    Sketcher.Constraint("Horizontal", 3),
    Sketcher.Constraint("Vertical", 4),
    Sketcher.Constraint("Horizontal", 5),
    Sketcher.Constraint("Vertical", 6),
    Sketcher.Constraint("Horizontal", 7),
    Sketcher.Constraint("Vertical", 8),
    Sketcher.Constraint("Horizontal", 9),
    Sketcher.Constraint("Vertical", 10),
    Sketcher.Constraint("Horizontal", 11),
    Sketcher.Constraint("Vertical", 12),
    Sketcher.Constraint("Horizontal", 13),
    Sketcher.Constraint("Vertical", 14),
    Sketcher.Constraint("Horizontal", 15),
    Sketcher.Constraint("Vertical", 16),
    Sketcher.Constraint("Horizontal", 17),
    Sketcher.Constraint("Vertical", 18),
    Sketcher.Constraint("Horizontal", 19),
    Sketcher.Constraint("Symmetric", 1, 2, 4, 2, -1, 1),
    Sketcher.Constraint("Symmetric", 0, 2, 5, 2, -2),
    Sketcher.Constraint("Symmetric", 11, 2, 14, 2, -2),
    Sketcher.Constraint("Symmetric", 9, 2, 16, 2, -2),
    Sketcher.Constraint("Horizontal", 3, 2, 6, 2),
    Sketcher.Constraint("Horizontal", 9, 2, 12, 2),
    Sketcher.Constraint("Horizontal", 7, 2, 18, 2),
    Sketcher.Constraint("Vertical", 6, 2, 9, 2),
    Sketcher.Constraint("Vertical", 4, 2, 11, 2),
    Sketcher.Constraint("Equal", 15, 8),
    Sketcher.Constraint("DistanceX", 1, 2, 1, 1, Q("5 mm")),
    Sketcher.Constraint("DistanceX", 3, 2, 3, 1, Q("44 mm")),
    Sketcher.Constraint("DistanceX", 17, 1, 17, 2, Q("11 mm")),
    Sketcher.Constraint("DistanceY", 0, 1, 0, 2, Q("9 mm")),
    Sketcher.Constraint("DistanceY", 10, 2, 10, 1, Q("31 mm")),
    Sketcher.Constraint("DistanceX", 7, 2, 7, 1, Q("10.964 mm")),
])
sketch13.setExpression("Constraints[50]", "Params.sketch13_width")
sketch13.setExpression("Constraints[51]", "Params.sketch13_width2")
sketch13.setExpression("Constraints[52]", "Params.sketch13_width3")
sketch13.setExpression("Constraints[53]", "Params.sketch13_height")
sketch13.setExpression("Constraints[54]", "Params.sketch13_height2")
pad5 = doc.addObject("PartDesign::Pad", "Pad004")
body.addObject(pad5)
pad5.Profile = sketch13
pad5.setExpression("Length", "Params.pad5_length")

sketch14 = doc.addObject("Sketcher::SketchObject", "Sketch013")
body.addObject(sketch14)
sketch14.AttachmentSupport = (doc.XY_Plane, [""])
sketch14.MapMode = "FlatFace"
sketch14.AttachmentOffset = App.Placement(App.Vector(0, 0, 10), App.Rotation())
sketch14.addGeometry([
    Part.LineSegment(App.Vector(22, 0, 0), App.Vector(27, 0, 0)),
    Part.LineSegment(App.Vector(27, 0, 0), App.Vector(27, 43, 0)),
    Part.LineSegment(App.Vector(27, 43, 0), App.Vector(22, 43, 0)),
    Part.LineSegment(App.Vector(22, 43, 0), App.Vector(22, 0, 0)),
    Part.LineSegment(App.Vector(-27, 43, 0), App.Vector(-27, 0, 0)),
    Part.LineSegment(App.Vector(-27, 0, 0), App.Vector(-22, 0, 0)),
    Part.LineSegment(App.Vector(-22, 0, 0), App.Vector(-22, 43, 0)),
    Part.LineSegment(App.Vector(-22, 43, 0), App.Vector(-27, 43, 0)),
], False)
sketch14.addConstraint([
    Sketcher.Constraint("Coincident", 0, 2, 1, 1),
    Sketcher.Constraint("Coincident", 1, 2, 2, 1),
    Sketcher.Constraint("Coincident", 2, 2, 3, 1),
    Sketcher.Constraint("Coincident", 3, 2, 0, 1),
    Sketcher.Constraint("Coincident", 4, 2, 5, 1),
    Sketcher.Constraint("Coincident", 5, 2, 6, 1),
    Sketcher.Constraint("Coincident", 6, 2, 7, 1),
    Sketcher.Constraint("Coincident", 7, 2, 4, 1),
    Sketcher.Constraint("Horizontal", 0),
    Sketcher.Constraint("Vertical", 1),
    Sketcher.Constraint("Horizontal", 2),
    Sketcher.Constraint("Vertical", 3),
    Sketcher.Constraint("Vertical", 4),
    Sketcher.Constraint("Horizontal", 5),
    Sketcher.Constraint("Vertical", 6),
    Sketcher.Constraint("Horizontal", 7),
    Sketcher.Constraint("Symmetric", 0, 2, 4, 2, -1, 1),
    Sketcher.Constraint("Symmetric", 3, 2, 5, 2, -2),
    Sketcher.Constraint("Horizontal", 2, 2, 6, 2),
    Sketcher.Constraint("DistanceX", 0, 1, 0, 2, Q("5 mm")),
    Sketcher.Constraint("DistanceY", 1, 1, 1, 2, Q("43 mm")),
    Sketcher.Constraint("DistanceX", -1, 1, 0, 2, Q("27 mm")),
])
sketch14.setExpression("Constraints[19]", "Params.sketch14_width")
sketch14.setExpression("Constraints[20]", "Params.sketch14_height")
pad6 = doc.addObject("PartDesign::Pad", "Pad005")
body.addObject(pad6)
pad6.Profile = sketch14
pad6.setExpression("Length", "Params.pad6_length")

sketch15 = doc.addObject("Sketcher::SketchObject", "Sketch014")
body.addObject(sketch15)
sketch15.AttachmentSupport = (doc.XY_Plane, [""])
sketch15.MapMode = "FlatFace"
sketch15.AttachmentOffset = App.Placement(App.Vector(0, 0, 5), App.Rotation())
sketch15.addGeometry([
    Part.LineSegment(App.Vector(-14, -20.8, 0), App.Vector(-18, -20.8, 0)),
    Part.ArcOfCircle(Part.Circle(App.Vector(-18, -22.5, 0), App.Vector(0, 0, 1), 1.7), math.radians(90), math.radians(270)),
    Part.LineSegment(App.Vector(-18, -24.2, 0), App.Vector(-14, -24.2, 0)),
    Part.ArcOfCircle(Part.Circle(App.Vector(-14, -22.5, 0), App.Vector(0, 0, 1), 1.7), math.radians(-90), math.radians(90)),
    Part.ArcOfCircle(Part.Circle(App.Vector(18, -22.5, 0), App.Vector(0, 0, 1), 1.7), math.radians(-90), math.radians(90)),
    Part.LineSegment(App.Vector(18, -20.8, 0), App.Vector(14, -20.8, 0)),
    Part.ArcOfCircle(Part.Circle(App.Vector(14, -22.5, 0), App.Vector(0, 0, 1), 1.7), math.radians(90), math.radians(270)),
    Part.LineSegment(App.Vector(14, -24.2, 0), App.Vector(18, -24.2, 0)),
], False)
sketch15.addConstraint([
    Sketcher.Constraint("Tangent", 0, 2, 1, 1),
    Sketcher.Constraint("Tangent", 1, 2, 2, 1),
    Sketcher.Constraint("Tangent", 2, 2, 3, 1),
    Sketcher.Constraint("Tangent", 3, 2, 0, 1),
    Sketcher.Constraint("Tangent", 4, 2, 5, 1),
    Sketcher.Constraint("Tangent", 5, 2, 6, 1),
    Sketcher.Constraint("Tangent", 6, 2, 7, 1),
    Sketcher.Constraint("Tangent", 7, 2, 4, 1),
    Sketcher.Constraint("Horizontal", 0),
    Sketcher.Constraint("Horizontal", 2),
    Sketcher.Constraint("Horizontal", 5),
    Sketcher.Constraint("Horizontal", 7),
    Sketcher.Constraint("Equal", 3, 4),
    Sketcher.Constraint("Symmetric", 1, 3, 4, 3, -2),
    Sketcher.Constraint("Equal", 2, 5),
    Sketcher.Constraint("Radius", 1, Q("1.7 mm")),
    Sketcher.Constraint("DistanceX", 0, 2, 0, 1, Q("4 mm")),
    Sketcher.Constraint("DistanceX", 1, 3, -1, 1, Q("18 mm")),
    Sketcher.Constraint("DistanceY", 1, 3, -1, 1, Q("22.5 mm")),
])
sketch15.setExpression("Constraints[15]", "Params.sketch15_radius")
sketch15.setExpression("Constraints[16]", "Params.sketch15_width")
pocket9 = doc.addObject("PartDesign::Pocket", "Pocket008")
body.addObject(pocket9)
pocket9.Profile = sketch15
pocket9.setExpression("Length", "Params.pocket9_length")
doc.recompute()

datumplane = doc.addObject("PartDesign::Plane", "DatumPlane")
body.addObject(datumplane)
datumplane.AttachmentSupport = (doc.XZ_Plane, [""])
datumplane.MapMode = "FlatFace"
datumplane.AttachmentOffset = App.Placement(App.Vector(0, 0, 36.5), App.Rotation())
mirrored3 = doc.addObject("PartDesign::Mirrored", "Mirrored002")
body.addObject(mirrored3)
mirrored3.Originals = [pocket9]
mirrored3.MirrorPlane = (datumplane, [""])
body.Tip = mirrored3
doc.recompute()

datumplane2 = doc.addObject("PartDesign::Plane", "DatumPlane001")
body.addObject(datumplane2)
datumplane2.AttachmentSupport = (doc.XZ_Plane, [""])
datumplane2.MapMode = "FlatFace"
datumplane2.AttachmentOffset = App.Placement(App.Vector(0, 0, 31.05), App.Rotation())
mirrored4 = doc.addObject("PartDesign::Mirrored", "Mirrored003")
body.addObject(mirrored4)
mirrored4.Originals = [pocket9]
mirrored4.MirrorPlane = (datumplane2, [""])
body.Tip = mirrored4

sketch16 = doc.addObject("Sketcher::SketchObject", "Sketch015")
body.addObject(sketch16)
sketch16.AttachmentSupport = (doc.XY_Plane, [""])
sketch16.MapMode = "FlatFace"
sketch16.AttachmentOffset = App.Placement(App.Vector(0, 0, 5), App.Rotation())
sketch16.addGeometry([
    Part.Circle(App.Vector(33.3, 19.7, 0), App.Vector(0, 0, 1), 1.7),
    Part.Circle(App.Vector(33.3, 30.7, 0), App.Vector(0, 0, 1), 1.7),
], False)
sketch16.addConstraint([
    Sketcher.Constraint("Equal", 0, 1),
    Sketcher.Constraint("Vertical", 0, 3, 1, 3),
    Sketcher.Constraint("Diameter", 0, Q("3.4 mm")),
    Sketcher.Constraint("DistanceY", 0, 3, 1, 3, Q("11 mm")),
    Sketcher.Constraint("DistanceX", -1, 1, 0, 3, Q("33.3 mm")),
    Sketcher.Constraint("DistanceY", -1, 1, 0, 3, Q("19.719 mm")),
])
sketch16.setExpression("Constraints[2]", "Params.sketch16_diameter")
pocket10 = doc.addObject("PartDesign::Pocket", "Pocket009")
body.addObject(pocket10)
pocket10.Profile = sketch16
pocket10.setExpression("Length", "Params.pocket10_length")
doc.recompute()

mirrored5 = doc.addObject("PartDesign::Mirrored", "Mirrored004")
body.addObject(mirrored5)
mirrored5.Originals = [pocket10]
mirrored5.MirrorPlane = (doc.YZ_Plane, [""])
body.Tip = mirrored5

doc.recompute()
